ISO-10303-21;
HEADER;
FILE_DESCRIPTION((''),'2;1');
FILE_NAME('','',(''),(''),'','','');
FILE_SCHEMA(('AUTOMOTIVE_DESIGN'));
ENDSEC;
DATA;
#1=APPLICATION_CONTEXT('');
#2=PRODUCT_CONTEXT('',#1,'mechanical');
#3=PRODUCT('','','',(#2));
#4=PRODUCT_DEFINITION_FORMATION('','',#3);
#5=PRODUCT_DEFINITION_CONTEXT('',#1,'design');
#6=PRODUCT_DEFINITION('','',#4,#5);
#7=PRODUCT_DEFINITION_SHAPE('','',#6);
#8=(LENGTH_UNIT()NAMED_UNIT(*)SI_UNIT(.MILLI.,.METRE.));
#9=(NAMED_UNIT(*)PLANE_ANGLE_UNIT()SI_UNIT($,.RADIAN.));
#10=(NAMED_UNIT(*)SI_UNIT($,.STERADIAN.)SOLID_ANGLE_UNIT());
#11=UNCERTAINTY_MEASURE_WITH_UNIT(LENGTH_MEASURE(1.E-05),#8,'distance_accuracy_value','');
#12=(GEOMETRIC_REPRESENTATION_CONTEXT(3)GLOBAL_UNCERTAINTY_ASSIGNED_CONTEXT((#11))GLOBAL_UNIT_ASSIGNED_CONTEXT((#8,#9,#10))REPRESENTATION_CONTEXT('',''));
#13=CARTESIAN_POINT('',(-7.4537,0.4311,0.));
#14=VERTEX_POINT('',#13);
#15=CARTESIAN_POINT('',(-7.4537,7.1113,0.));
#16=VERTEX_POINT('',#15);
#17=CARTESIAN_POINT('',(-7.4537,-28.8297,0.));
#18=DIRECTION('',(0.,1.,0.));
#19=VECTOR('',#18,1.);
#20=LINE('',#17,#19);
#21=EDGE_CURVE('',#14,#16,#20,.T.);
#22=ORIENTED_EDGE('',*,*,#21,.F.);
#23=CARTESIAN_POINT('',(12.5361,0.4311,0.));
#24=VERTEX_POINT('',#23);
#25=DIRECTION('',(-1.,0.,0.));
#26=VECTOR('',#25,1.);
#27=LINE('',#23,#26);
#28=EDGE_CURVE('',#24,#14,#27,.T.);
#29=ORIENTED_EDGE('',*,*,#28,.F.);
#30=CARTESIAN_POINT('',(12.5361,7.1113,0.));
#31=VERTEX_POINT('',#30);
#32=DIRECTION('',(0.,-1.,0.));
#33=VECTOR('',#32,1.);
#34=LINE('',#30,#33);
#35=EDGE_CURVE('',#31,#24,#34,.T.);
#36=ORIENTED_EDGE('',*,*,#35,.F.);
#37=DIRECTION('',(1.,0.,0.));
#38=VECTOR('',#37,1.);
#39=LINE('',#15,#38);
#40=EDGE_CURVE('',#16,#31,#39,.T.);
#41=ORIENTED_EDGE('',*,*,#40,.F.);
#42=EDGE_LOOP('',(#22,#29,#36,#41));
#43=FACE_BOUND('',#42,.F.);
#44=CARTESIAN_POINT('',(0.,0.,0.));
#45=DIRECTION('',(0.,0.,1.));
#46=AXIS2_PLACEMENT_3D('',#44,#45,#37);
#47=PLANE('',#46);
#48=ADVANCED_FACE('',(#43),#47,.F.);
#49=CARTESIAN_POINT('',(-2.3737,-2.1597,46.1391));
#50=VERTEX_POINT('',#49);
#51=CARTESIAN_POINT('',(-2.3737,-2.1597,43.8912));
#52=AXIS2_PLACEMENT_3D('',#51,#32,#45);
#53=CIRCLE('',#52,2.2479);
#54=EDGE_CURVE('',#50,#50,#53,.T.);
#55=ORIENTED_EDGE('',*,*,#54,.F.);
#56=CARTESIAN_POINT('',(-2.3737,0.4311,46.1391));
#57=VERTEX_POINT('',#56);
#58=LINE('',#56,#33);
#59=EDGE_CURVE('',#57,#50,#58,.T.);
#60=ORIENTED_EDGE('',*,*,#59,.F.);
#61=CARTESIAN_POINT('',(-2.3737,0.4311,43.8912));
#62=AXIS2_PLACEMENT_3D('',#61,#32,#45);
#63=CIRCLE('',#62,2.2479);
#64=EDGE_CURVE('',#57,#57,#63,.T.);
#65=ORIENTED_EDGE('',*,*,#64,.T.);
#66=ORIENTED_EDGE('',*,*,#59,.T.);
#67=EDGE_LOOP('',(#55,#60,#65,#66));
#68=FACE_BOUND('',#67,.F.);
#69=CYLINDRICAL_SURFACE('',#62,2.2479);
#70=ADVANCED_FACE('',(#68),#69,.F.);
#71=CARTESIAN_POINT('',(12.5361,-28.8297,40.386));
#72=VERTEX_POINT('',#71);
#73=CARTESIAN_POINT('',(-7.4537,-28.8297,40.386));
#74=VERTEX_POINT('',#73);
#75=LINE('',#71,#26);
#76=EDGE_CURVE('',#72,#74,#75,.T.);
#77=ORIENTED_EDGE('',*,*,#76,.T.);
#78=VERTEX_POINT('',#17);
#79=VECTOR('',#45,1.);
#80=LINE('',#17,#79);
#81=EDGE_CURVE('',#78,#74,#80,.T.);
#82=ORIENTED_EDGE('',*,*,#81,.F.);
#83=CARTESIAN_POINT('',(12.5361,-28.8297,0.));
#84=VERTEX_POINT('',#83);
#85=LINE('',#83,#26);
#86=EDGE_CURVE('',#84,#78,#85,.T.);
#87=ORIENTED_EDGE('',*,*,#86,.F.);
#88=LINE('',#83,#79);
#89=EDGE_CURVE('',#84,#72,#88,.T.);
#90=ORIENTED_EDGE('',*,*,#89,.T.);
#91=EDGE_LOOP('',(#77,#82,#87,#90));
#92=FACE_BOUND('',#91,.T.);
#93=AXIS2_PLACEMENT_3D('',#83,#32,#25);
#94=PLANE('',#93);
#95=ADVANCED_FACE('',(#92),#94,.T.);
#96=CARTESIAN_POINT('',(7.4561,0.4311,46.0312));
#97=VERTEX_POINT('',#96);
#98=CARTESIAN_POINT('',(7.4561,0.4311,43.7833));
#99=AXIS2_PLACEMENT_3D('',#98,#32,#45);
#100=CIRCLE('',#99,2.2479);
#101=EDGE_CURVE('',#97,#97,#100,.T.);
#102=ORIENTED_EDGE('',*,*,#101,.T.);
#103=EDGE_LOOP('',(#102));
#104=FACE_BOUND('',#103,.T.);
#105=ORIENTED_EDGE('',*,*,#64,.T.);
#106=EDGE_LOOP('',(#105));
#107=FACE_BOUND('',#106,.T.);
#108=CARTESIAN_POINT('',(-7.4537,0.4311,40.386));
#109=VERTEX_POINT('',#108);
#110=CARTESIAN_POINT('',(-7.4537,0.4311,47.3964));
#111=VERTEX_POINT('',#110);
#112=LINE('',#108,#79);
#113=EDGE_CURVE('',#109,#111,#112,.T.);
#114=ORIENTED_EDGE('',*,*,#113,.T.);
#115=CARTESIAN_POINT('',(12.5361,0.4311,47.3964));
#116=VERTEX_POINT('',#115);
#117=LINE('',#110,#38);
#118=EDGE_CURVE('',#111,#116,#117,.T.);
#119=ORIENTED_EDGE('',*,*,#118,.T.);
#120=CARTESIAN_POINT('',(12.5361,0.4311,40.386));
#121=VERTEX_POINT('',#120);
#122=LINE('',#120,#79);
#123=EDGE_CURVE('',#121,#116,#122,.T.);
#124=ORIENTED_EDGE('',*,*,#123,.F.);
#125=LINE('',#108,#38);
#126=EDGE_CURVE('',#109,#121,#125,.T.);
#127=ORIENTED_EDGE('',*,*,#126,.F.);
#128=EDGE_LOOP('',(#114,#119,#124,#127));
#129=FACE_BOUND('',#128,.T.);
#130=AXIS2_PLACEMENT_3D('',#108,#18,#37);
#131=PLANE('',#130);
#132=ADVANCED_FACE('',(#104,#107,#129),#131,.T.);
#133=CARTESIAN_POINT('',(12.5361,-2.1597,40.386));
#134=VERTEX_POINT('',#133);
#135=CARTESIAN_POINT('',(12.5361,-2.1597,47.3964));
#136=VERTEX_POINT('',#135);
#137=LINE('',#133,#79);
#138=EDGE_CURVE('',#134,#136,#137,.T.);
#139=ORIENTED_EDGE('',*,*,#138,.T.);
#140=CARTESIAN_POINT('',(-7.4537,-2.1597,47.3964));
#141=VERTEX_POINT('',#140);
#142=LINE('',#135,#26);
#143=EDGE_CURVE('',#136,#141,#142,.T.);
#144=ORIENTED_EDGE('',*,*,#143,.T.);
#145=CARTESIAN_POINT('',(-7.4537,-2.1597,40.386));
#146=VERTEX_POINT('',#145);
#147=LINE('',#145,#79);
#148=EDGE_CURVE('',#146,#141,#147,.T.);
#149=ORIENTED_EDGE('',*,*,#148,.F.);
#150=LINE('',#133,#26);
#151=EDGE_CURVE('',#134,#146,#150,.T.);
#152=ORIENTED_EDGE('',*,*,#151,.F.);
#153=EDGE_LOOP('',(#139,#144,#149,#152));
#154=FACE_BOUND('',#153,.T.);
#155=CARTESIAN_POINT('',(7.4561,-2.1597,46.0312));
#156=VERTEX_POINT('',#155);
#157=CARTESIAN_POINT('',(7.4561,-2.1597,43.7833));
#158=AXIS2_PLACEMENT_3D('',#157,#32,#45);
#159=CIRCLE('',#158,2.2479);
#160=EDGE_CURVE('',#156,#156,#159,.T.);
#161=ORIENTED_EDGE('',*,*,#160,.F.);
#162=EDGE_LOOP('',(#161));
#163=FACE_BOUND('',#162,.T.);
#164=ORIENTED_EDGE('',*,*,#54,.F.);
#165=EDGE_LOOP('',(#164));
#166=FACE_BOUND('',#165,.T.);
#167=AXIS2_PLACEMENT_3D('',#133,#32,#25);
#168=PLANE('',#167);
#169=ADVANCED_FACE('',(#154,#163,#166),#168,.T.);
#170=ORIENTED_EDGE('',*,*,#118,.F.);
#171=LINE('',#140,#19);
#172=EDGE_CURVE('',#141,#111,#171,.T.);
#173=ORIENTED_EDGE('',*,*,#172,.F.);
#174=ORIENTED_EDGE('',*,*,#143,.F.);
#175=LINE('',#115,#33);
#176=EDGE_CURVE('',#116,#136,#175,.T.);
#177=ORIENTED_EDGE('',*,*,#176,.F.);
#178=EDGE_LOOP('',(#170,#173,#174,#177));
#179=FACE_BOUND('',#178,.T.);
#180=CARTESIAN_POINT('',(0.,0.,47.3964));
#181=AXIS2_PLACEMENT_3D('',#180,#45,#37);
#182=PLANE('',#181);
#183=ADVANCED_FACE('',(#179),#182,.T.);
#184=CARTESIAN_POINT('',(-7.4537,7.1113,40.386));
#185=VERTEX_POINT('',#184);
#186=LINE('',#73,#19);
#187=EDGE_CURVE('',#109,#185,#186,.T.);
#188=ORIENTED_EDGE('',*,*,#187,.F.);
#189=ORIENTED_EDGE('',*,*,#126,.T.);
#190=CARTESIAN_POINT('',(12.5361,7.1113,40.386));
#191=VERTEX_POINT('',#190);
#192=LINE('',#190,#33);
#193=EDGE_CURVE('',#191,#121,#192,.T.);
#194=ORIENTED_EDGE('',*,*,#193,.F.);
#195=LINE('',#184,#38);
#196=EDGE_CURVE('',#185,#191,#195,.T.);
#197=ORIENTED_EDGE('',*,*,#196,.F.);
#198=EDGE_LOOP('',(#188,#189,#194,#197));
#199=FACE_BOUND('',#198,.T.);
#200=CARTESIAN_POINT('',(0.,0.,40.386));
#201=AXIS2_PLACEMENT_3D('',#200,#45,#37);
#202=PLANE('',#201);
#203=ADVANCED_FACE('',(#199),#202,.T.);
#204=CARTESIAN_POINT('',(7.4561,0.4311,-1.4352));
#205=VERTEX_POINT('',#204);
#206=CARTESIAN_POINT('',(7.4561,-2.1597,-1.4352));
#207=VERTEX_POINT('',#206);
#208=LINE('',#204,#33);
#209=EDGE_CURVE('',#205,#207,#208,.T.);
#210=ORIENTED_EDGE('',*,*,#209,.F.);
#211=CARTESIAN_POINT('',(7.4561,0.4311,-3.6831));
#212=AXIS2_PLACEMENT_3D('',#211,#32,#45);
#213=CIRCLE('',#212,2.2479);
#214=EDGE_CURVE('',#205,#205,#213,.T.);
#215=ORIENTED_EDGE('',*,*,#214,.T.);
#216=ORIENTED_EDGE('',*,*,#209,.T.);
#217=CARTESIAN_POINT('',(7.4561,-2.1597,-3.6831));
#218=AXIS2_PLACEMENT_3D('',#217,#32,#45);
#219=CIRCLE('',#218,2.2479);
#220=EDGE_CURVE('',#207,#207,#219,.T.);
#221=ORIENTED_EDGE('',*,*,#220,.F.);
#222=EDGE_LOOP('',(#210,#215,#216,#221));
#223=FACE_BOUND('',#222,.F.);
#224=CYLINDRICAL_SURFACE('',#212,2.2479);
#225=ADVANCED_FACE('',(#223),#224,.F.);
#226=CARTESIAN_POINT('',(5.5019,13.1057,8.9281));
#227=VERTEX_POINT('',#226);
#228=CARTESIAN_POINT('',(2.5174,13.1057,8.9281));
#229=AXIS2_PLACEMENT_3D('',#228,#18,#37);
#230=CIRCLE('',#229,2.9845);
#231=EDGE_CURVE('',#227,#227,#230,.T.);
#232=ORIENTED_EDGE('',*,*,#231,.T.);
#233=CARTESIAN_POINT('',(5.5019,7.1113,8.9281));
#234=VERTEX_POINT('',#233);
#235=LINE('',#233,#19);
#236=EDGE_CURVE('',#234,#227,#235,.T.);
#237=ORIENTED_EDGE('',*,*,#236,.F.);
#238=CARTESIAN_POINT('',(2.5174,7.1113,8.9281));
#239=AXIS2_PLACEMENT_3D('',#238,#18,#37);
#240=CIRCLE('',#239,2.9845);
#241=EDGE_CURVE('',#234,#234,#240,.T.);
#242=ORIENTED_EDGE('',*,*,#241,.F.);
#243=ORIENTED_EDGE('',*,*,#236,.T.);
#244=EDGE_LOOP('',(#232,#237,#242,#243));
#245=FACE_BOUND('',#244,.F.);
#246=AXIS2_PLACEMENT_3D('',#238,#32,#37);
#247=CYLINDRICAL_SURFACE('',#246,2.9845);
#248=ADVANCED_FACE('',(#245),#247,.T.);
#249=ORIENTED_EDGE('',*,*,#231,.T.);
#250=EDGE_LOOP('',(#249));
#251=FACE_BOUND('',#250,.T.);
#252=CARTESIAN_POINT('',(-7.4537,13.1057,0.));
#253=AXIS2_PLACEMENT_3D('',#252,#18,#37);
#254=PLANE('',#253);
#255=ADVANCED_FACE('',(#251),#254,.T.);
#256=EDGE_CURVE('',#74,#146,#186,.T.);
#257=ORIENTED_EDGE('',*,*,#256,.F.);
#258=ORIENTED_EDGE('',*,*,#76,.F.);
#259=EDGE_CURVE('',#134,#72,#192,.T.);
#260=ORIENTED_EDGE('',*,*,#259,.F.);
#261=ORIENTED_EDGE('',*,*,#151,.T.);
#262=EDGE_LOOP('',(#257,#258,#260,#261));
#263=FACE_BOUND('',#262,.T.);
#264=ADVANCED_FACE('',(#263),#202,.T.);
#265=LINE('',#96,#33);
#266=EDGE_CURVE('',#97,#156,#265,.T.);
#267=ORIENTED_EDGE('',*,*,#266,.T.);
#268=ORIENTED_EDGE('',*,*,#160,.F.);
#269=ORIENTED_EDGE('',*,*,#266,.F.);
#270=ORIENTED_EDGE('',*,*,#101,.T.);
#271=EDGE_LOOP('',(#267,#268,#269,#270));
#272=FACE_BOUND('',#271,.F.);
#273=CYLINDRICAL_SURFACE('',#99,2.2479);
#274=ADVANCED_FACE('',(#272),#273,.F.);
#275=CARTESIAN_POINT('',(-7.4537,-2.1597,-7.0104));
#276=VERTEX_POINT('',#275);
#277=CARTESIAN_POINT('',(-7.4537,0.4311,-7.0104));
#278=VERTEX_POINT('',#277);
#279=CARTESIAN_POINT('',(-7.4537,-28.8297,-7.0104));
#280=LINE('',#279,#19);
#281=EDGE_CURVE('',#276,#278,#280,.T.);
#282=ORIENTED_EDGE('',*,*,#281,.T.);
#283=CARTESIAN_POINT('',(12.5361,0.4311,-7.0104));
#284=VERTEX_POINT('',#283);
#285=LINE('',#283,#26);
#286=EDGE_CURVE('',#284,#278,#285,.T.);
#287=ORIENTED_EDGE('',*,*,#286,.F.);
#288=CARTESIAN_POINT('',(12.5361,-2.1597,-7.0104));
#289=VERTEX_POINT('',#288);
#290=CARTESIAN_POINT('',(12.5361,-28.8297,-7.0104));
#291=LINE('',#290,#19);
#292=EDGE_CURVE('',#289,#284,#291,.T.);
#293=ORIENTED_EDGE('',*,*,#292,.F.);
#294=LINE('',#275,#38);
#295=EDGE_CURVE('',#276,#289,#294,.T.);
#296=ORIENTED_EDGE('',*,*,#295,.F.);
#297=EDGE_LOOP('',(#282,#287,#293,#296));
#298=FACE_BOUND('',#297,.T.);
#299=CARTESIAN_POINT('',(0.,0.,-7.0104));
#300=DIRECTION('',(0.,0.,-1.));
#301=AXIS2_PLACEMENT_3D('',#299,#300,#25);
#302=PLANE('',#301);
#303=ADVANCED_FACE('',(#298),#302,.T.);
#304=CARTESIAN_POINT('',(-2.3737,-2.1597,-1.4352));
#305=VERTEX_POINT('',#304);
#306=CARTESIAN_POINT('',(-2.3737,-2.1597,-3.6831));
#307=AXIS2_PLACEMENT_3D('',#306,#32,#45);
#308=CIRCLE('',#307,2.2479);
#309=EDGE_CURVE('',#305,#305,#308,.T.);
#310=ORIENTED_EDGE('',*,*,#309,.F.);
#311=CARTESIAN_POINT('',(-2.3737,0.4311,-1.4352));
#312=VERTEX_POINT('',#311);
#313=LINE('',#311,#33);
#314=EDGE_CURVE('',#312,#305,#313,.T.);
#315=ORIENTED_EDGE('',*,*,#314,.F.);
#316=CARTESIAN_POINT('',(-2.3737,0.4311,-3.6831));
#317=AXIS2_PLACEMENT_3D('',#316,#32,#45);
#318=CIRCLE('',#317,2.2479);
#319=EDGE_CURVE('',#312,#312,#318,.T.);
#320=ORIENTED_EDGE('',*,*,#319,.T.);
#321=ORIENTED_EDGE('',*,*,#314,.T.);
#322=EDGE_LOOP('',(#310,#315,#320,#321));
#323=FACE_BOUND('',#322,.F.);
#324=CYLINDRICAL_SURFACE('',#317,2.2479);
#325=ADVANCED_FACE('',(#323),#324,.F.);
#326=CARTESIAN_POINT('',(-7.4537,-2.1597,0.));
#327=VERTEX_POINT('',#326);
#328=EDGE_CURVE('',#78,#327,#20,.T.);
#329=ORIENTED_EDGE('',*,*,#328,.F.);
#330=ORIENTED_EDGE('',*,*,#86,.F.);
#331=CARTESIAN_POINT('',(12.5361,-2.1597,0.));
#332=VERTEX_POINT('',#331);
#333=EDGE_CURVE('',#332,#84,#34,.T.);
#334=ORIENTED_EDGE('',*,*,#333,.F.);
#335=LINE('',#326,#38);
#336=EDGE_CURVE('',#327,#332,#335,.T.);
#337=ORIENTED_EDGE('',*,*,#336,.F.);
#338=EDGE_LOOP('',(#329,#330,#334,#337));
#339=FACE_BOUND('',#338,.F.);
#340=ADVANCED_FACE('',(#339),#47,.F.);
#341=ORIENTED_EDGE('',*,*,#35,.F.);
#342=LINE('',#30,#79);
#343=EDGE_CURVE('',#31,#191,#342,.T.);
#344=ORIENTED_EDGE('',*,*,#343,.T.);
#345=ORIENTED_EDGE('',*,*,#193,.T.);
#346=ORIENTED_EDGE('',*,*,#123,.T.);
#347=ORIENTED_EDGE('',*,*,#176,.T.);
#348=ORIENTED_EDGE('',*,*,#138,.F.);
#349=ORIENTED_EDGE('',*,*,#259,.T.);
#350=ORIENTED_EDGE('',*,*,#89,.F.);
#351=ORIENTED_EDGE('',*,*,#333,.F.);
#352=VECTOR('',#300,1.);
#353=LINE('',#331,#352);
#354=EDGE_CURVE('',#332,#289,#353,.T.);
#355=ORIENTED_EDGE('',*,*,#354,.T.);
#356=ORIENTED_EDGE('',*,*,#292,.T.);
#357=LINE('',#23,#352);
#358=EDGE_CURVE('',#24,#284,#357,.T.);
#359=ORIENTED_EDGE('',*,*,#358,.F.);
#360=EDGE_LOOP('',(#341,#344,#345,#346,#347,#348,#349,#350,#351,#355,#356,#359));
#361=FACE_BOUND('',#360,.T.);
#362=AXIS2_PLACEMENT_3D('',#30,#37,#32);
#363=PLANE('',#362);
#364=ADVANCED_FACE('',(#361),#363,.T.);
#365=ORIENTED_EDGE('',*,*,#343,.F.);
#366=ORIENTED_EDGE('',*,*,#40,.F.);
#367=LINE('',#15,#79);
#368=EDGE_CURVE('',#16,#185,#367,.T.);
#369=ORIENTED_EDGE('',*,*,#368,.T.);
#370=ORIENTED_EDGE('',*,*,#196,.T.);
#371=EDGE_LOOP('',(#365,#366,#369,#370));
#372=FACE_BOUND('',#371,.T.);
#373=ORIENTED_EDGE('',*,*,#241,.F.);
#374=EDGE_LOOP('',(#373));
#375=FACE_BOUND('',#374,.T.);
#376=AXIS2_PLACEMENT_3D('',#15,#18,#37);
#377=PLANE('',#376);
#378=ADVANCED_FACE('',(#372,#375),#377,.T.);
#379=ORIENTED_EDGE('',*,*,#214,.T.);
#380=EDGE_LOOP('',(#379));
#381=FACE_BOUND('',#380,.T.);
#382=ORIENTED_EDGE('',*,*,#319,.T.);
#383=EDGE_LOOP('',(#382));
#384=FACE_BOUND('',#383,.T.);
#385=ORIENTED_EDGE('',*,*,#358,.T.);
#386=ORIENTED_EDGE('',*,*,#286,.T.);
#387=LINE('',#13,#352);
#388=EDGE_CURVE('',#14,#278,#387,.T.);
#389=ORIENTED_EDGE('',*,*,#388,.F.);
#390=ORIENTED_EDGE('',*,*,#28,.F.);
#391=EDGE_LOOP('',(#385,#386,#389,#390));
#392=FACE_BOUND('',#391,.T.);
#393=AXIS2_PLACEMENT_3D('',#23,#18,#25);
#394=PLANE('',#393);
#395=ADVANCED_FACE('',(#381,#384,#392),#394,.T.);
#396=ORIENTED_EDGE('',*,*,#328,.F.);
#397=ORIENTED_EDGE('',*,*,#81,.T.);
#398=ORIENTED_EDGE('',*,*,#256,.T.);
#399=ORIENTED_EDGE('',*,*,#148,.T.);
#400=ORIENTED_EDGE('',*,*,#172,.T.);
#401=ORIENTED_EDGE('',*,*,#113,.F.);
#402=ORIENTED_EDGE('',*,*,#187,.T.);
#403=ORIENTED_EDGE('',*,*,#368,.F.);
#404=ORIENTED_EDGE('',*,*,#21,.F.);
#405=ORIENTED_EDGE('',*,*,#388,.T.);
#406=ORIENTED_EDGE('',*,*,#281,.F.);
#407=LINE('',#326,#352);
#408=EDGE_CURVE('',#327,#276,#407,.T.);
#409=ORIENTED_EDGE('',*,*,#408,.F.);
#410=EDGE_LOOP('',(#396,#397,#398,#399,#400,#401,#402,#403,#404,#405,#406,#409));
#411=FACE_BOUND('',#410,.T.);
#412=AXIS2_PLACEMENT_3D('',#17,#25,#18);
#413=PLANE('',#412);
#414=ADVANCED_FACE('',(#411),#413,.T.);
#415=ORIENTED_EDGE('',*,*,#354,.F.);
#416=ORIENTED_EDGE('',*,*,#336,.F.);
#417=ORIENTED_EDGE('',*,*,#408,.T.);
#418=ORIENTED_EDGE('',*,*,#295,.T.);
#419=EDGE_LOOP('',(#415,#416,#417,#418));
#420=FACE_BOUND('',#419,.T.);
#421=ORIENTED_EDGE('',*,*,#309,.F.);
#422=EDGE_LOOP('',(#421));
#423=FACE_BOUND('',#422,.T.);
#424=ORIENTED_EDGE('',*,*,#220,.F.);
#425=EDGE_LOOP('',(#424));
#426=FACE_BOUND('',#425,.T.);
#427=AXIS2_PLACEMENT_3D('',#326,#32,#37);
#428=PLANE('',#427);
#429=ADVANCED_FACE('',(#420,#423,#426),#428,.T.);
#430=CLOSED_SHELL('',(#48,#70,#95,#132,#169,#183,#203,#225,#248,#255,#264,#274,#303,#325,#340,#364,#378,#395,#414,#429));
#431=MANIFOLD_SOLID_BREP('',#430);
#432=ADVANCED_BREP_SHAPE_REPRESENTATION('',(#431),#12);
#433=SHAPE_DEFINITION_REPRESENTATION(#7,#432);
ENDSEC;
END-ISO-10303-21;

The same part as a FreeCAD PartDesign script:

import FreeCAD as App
import Part
import Sketcher
Q = App.Units.Quantity


def add_polygon(sketch, points):
    """Adds a closed chain of lines whose ends are joined by coincident constraints."""
    first, n = sketch.GeometryCount, len(points)
    for a, b in zip(points, points[1:] + points[:1]):
        sketch.addGeometry(Part.LineSegment(App.Vector(*a, 0), App.Vector(*b, 0)), False)
    for i in range(n):
        sketch.addConstraint(Sketcher.Constraint("Coincident", first + i, 2, first + (i + 1) % n, 1))

doc = App.newDocument("Part")
body = doc.addObject("PartDesign::Body", "Body")

# Sketch on XY plane
sketch1 = body.newObject("Sketcher::SketchObject", "Sketch")
sketch1.AttachmentSupport = (doc.getObject("XY_Plane"), [""])
sketch1.MapMode = "FlatFace"
add_polygon(sketch1, [(13, 7), (-7, 7), (-7, -29), (13, -29)])  # lines 0-3
sketch1.addConstraint([
    Sketcher.Constraint("Horizontal", 0),
    Sketcher.Constraint("Vertical", 1),
    Sketcher.Constraint("Horizontal", 2),
    Sketcher.Constraint("Vertical", 3),
    Sketcher.Constraint("DistanceX", 0, 2, 0, 1, Q("0.787 in")),
    Sketcher.Constraint("DistanceY", 1, 2, 1, 1, Q("1.415 in")),
    Sketcher.Constraint("DistanceX", 0, 2, -1, 1, 7.4537),
    Sketcher.Constraint("DistanceY", -1, 1, 0, 2, 7.1113),
])
pad1 = body.newObject("PartDesign::Pad", "Pad")
pad1.Profile = sketch1
pad1.Length = Q("1.59 in")

# Sketch on XY plane
sketch2 = body.newObject("Sketcher::SketchObject", "Sketch001")
sketch2.AttachmentSupport = (doc.getObject("XY_Plane"), [""])
sketch2.MapMode = "FlatFace"
add_polygon(sketch2, [(12.5, 0.4), (12.5, -2.2), (-7.5, -2.2), (-7.5, 0.4)])  # lines 0-3
sketch2.addConstraint([
    Sketcher.Constraint("Vertical", 0),
    Sketcher.Constraint("Horizontal", 1),
    Sketcher.Constraint("Vertical", 2),
    Sketcher.Constraint("Horizontal", 3),
    Sketcher.Constraint("DistanceX", 1, 2, 1, 1, Q("0.787 in")),
    Sketcher.Constraint("DistanceY", 0, 2, 0, 1, Q("0.102 in")),
    Sketcher.Constraint("DistanceX", -1, 1, 0, 2, 12.536),
    Sketcher.Constraint("DistanceY", 0, 2, -1, 1, 2.1597),
])
pad2 = body.newObject("PartDesign::Pad", "Pad001")
pad2.Profile = sketch2
pad2.Length = Q("0.276 in")
pad2.Reversed = True

# Sketch on XY plane
sketch3 = body.newObject("Sketcher::SketchObject", "Sketch002")
sketch3.AttachmentSupport = (doc.getObject("XY_Plane"), [""])
sketch3.MapMode = "FlatFace"
sketch3.AttachmentOffset = App.Placement(App.Vector(0, 0, 1.59 * 25.4), App.Rotation())
add_polygon(sketch3, [(-7.5, 0.4), (-7.5, -2.2), (12.5, -2.2), (12.5, 0.4)])  # lines 0-3
sketch3.addConstraint([
    Sketcher.Constraint("Vertical", 0),
    Sketcher.Constraint("Horizontal", 1),
    Sketcher.Constraint("Vertical", 2),
    Sketcher.Constraint("Horizontal", 3),
    Sketcher.Constraint("DistanceX", 1, 1, 1, 2, Q("0.787 in")),
    Sketcher.Constraint("DistanceY", 0, 2, 0, 1, Q("0.102 in")),
    Sketcher.Constraint("DistanceX", 0, 2, -1, 1, 7.4537),
    Sketcher.Constraint("DistanceY", 0, 2, -1, 1, 2.1597),
])
pad3 = body.newObject("PartDesign::Pad", "Pad002")
pad3.Profile = sketch3
pad3.Length = Q("0.276 in")

# Sketch on XZ plane
sketch4 = body.newObject("Sketcher::SketchObject", "Sketch003")
sketch4.AttachmentSupport = (doc.getObject("XZ_Plane"), [""])
sketch4.MapMode = "FlatFace"
sketch4.AttachmentOffset = App.Placement(App.Vector(0, 0, -0.4311), App.Rotation())
sketch4.addGeometry([
    Part.Circle(App.Vector(7.5, 43.8, 0), App.Vector(0, 0, 1), 2.2),
    Part.Circle(App.Vector(-2.4, 43.9, 0), App.Vector(0, 0, 1), 2.2),
], False)
sketch4.addConstraint([
    Sketcher.Constraint("Equal", 0, 1),
    Sketcher.Constraint("Diameter", 0, Q("0.177 in")),
    Sketcher.Constraint("DistanceY", -1, 1, 1, 3, Q("1.728 in")),
    Sketcher.Constraint("DistanceX", 1, 3, 0, 3, Q("0.387 in")),
    Sketcher.Constraint("DistanceX", -1, 1, 0, 3, 7.456),
    Sketcher.Constraint("DistanceY", -1, 1, 0, 3, 43.7833),
])
doc.recompute()
hole = body.newObject("PartDesign::Hole", "Hole")
hole.Profile = sketch4
hole.ThreadType = "None"
hole.Diameter = Q("0.177 in")
hole.DepthType = "ThroughAll"
hole.Reversed = True

# Sketch on XZ plane
sketch5 = body.newObject("Sketcher::SketchObject", "Sketch004")
sketch5.AttachmentSupport = (doc.getObject("XZ_Plane"), [""])
sketch5.MapMode = "FlatFace"
sketch5.AttachmentOffset = App.Placement(App.Vector(0, 0, -0.4311), App.Rotation())
sketch5.addGeometry([
    Part.Circle(App.Vector(7.5, -3.7, 0), App.Vector(0, 0, 1), 2.2),
    Part.Circle(App.Vector(-2.4, -3.7, 0), App.Vector(0, 0, 1), 2.2),
], False)
sketch5.addConstraint([
    Sketcher.Constraint("Equal", 0, 1),
    Sketcher.Constraint("Horizontal", 0, 3, 1, 3),
    Sketcher.Constraint("Diameter", 0, Q("0.177 in")),
    Sketcher.Constraint("DistanceY", 0, 3, -1, 1, Q("0.145 in")),
    Sketcher.Constraint("DistanceX", 1, 3, 0, 3, Q("0.387 in")),
    Sketcher.Constraint("DistanceX", -1, 1, 0, 3, 7.456),
])
doc.recompute()
hole2 = body.newObject("PartDesign::Hole", "Hole001")
hole2.Profile = sketch5
hole2.ThreadType = "None"
hole2.Diameter = Q("0.177 in")
hole2.DepthType = "ThroughAll"
hole2.Reversed = True

# Sketch on XZ plane
sketch6 = body.newObject("Sketcher::SketchObject", "Sketch005")
sketch6.AttachmentSupport = (doc.getObject("XZ_Plane"), [""])
sketch6.MapMode = "FlatFace"
sketch6.AttachmentOffset = App.Placement(App.Vector(0, 0, -7.1113), App.Rotation())
sketch6.addGeometry(Part.Circle(App.Vector(2.5, 8.9, 0), App.Vector(0, 0, 1), 3), False)
sketch6.addConstraint([
    Sketcher.Constraint("Diameter", 0, Q("0.235 in")),
    Sketcher.Constraint("DistanceX", -1, 1, 0, 3, Q("0.0991 in")),
    Sketcher.Constraint("DistanceY", -1, 1, 0, 3, Q("0.3515 in")),
])
pad4 = body.newObject("PartDesign::Pad", "Pad003")
pad4.Profile = sketch6
pad4.Length = Q("0.236 in")
pad4.Reversed = True

doc.recompute()
